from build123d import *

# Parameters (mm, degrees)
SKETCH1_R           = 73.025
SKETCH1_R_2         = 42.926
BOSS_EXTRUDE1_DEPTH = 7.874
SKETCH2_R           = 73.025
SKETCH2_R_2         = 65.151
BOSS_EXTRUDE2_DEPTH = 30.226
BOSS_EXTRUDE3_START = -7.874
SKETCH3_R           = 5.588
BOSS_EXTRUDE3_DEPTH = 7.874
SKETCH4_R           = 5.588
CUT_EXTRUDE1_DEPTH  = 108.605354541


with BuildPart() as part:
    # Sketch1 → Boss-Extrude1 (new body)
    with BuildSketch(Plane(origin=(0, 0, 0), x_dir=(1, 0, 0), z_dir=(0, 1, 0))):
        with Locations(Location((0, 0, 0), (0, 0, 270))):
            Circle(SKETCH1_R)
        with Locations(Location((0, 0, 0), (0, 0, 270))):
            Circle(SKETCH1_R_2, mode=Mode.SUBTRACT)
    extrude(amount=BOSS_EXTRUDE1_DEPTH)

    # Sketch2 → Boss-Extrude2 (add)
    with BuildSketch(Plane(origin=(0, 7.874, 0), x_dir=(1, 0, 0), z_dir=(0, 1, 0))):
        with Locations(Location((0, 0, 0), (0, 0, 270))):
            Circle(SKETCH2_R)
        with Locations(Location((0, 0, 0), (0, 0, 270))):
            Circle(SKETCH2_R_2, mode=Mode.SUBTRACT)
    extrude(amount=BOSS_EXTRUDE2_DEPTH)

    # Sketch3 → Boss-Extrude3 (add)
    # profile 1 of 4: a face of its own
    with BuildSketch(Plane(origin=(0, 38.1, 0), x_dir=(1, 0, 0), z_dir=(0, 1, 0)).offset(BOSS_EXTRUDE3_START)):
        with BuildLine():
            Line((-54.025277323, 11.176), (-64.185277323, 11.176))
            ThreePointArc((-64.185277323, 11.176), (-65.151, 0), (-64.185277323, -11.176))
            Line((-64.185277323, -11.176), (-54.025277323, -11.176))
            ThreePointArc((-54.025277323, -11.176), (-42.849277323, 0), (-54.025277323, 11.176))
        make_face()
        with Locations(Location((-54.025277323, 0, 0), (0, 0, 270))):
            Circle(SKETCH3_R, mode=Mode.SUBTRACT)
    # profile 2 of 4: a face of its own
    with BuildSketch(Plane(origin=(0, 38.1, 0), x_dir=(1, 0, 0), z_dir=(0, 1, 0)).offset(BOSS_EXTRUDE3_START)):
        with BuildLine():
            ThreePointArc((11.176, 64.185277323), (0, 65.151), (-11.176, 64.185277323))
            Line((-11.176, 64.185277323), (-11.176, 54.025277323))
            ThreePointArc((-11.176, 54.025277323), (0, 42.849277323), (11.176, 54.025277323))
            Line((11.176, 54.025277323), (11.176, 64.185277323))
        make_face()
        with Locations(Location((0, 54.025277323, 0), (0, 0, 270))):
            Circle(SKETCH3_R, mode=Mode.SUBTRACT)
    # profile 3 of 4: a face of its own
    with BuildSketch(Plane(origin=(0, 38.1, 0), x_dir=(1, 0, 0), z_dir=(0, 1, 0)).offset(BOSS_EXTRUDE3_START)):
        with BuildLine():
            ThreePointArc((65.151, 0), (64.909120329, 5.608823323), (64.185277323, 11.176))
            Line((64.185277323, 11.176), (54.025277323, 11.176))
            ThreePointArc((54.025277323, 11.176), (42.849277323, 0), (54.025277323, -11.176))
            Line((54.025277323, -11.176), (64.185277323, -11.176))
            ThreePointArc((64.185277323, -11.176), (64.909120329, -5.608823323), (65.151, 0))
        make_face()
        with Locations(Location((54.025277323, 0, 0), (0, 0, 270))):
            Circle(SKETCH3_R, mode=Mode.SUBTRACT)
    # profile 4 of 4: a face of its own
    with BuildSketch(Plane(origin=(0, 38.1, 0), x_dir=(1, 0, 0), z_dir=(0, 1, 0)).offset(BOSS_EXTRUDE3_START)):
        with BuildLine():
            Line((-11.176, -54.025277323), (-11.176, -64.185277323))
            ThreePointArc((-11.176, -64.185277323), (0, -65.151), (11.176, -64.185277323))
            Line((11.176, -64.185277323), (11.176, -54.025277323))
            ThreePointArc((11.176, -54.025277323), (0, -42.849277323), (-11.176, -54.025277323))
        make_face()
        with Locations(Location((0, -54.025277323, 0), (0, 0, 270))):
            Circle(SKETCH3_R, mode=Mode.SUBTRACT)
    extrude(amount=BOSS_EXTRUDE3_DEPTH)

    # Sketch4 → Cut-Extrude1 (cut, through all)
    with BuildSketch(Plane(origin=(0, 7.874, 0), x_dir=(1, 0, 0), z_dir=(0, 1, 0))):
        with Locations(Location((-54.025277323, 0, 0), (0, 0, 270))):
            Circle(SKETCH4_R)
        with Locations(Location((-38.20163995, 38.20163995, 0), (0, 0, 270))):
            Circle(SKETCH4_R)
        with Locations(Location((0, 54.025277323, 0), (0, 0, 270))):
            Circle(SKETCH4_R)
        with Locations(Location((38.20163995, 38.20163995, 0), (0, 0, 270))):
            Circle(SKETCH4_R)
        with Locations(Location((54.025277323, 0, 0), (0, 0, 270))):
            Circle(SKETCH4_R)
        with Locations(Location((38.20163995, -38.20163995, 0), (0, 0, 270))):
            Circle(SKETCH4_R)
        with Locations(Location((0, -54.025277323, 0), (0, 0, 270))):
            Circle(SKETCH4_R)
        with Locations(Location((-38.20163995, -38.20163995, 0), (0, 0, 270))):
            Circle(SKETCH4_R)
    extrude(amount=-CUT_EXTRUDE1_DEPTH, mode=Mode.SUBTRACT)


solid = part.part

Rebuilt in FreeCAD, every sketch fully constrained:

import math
import FreeCAD as App
import Part
import Sketcher
Q = App.Units.Quantity

doc = App.newDocument("Part")
body = doc.addObject("PartDesign::Body", "Body")

# Sketch on XZ plane
sketch1 = body.newObject("Sketcher::SketchObject", "Sketch")
sketch1.AttachmentSupport = (doc.getObject("XZ_Plane"), [""])
sketch1.MapMode = "FlatFace"
sketch1.addGeometry([
    Part.Circle(App.Vector(0, 0, 0), App.Vector(0, 0, 1), 73.025),
    Part.Circle(App.Vector(0, 0, 0), App.Vector(0, 0, 1), 42.926),
], False)
sketch1.addConstraint([
    Sketcher.Constraint("Coincident", 0, 3, -1, 1),
    Sketcher.Constraint("Coincident", 1, 3, -1, 1),
    Sketcher.Constraint("Diameter", 0, Q("5.75 in")),
    Sketcher.Constraint("Diameter", 1, Q("3.38 in")),
])
pad1 = body.newObject("PartDesign::Pad", "Pad")
pad1.Profile = sketch1
pad1.Length = Q("0.31 in")
pad1.Reversed = True

# Sketch on XZ plane
sketch2 = body.newObject("Sketcher::SketchObject", "Sketch001")
sketch2.AttachmentSupport = (doc.getObject("XZ_Plane"), [""])
sketch2.MapMode = "FlatFace"
sketch2.AttachmentOffset = App.Placement(App.Vector(0, 0, -0.31 * 25.4), App.Rotation())
sketch2.addGeometry([
    Part.Circle(App.Vector(0, 0, 0), App.Vector(0, 0, 1), 73.025),
    Part.Circle(App.Vector(0, 0, 0), App.Vector(0, 0, 1), 65.151),
], False)
sketch2.addConstraint([
    Sketcher.Constraint("Coincident", 0, 3, -1, 1),
    Sketcher.Constraint("Coincident", 1, 3, -1, 1),
    Sketcher.Constraint("Diameter", 0, Q("5.75 in")),
    Sketcher.Constraint("Diameter", 1, Q("5.13 in")),
])
pad2 = body.newObject("PartDesign::Pad", "Pad001")
pad2.Profile = sketch2
pad2.Length = Q("1.19 in")
pad2.Reversed = True

# Sketch on XZ plane
sketch3 = body.newObject("Sketcher::SketchObject", "Sketch002")
sketch3.AttachmentSupport = (doc.getObject("XZ_Plane"), [""])
sketch3.MapMode = "FlatFace"
sketch3.AttachmentOffset = App.Placement(App.Vector(0, 0, -1.19 * 25.4), App.Rotation())
sketch3.addGeometry([
    Part.LineSegment(App.Vector(-54.025277, -11.176, 0), App.Vector(-64.185277, -11.176, 0)),  # 0
    Part.ArcOfCircle(Part.Circle(App.Vector(0, 0, 0), App.Vector(0, 0, 1), 65.151), math.radians(170.122632), math.radians(189.877368)),  # 1
    Part.LineSegment(App.Vector(-64.185277, 11.176, 0), App.Vector(-54.025277, 11.176, 0)),  # 2
    Part.ArcOfCircle(Part.Circle(App.Vector(-54.025277, 0, 0), App.Vector(0, 0, 1), 11.176), math.radians(-90), math.radians(90)),  # 3
    Part.Circle(App.Vector(-54.025277, 0, 0), App.Vector(0, 0, 1), 5.588),  # 4
    Part.ArcOfCircle(Part.Circle(App.Vector(0, 0, 0), App.Vector(0, 0, 1), 65.151), math.radians(-99.877368), math.radians(-80.122632)),  # 5
    Part.LineSegment(App.Vector(-11.176, -64.185277, 0), App.Vector(-11.176, -54.025277, 0)),  # 6
    Part.ArcOfCircle(Part.Circle(App.Vector(0, -54.025277, 0), App.Vector(0, 0, 1), 11.176), math.radians(0), math.radians(180)),  # 7
    Part.LineSegment(App.Vector(11.176, -54.025277, 0), App.Vector(11.176, -64.185277, 0)),  # 8
    Part.Circle(App.Vector(0, -54.025277, 0), App.Vector(0, 0, 1), 5.588),  # 9
    Part.ArcOfCircle(Part.Circle(App.Vector(0, 0, 0), App.Vector(0, 0, 1), 65.151), math.radians(-9.877368), math.radians(0)),  # 10
    Part.LineSegment(App.Vector(64.185277, -11.176, 0), App.Vector(54.025277, -11.176, 0)),  # 11
    Part.ArcOfCircle(Part.Circle(App.Vector(54.025277, 0, 0), App.Vector(0, 0, 1), 11.176), math.radians(90), math.radians(270)),  # 12
    Part.LineSegment(App.Vector(54.025277, 11.176, 0), App.Vector(64.185277, 11.176, 0)),  # 13
    Part.ArcOfCircle(Part.Circle(App.Vector(0, 0, 0), App.Vector(0, 0, 1), 65.151), math.radians(0), math.radians(9.877368)),  # 14
    Part.Circle(App.Vector(54.025277, 0, 0), App.Vector(0, 0, 1), 5.588),  # 15
    Part.LineSegment(App.Vector(-11.176, 54.025277, 0), App.Vector(-11.176, 64.185277, 0)),  # 16
    Part.ArcOfCircle(Part.Circle(App.Vector(0, 0, 0), App.Vector(0, 0, 1), 65.151), math.radians(80.122632), math.radians(99.877368)),  # 17
    Part.LineSegment(App.Vector(11.176, 64.185277, 0), App.Vector(11.176, 54.025277, 0)),  # 18
    Part.ArcOfCircle(Part.Circle(App.Vector(0, 54.025277, 0), App.Vector(0, 0, 1), 11.176), math.radians(180), math.radians(360)),  # 19
    Part.Circle(App.Vector(0, 54.025277, 0), App.Vector(0, 0, 1), 5.588),  # 20
], False)
sketch3.addConstraint([
    Sketcher.Constraint("Coincident", 0, 2, 1, 2),
    Sketcher.Constraint("Coincident", 1, 1, 2, 1),
    Sketcher.Constraint("Tangent", 2, 2, 3, 2),
    Sketcher.Constraint("Tangent", 3, 1, 0, 1),
    Sketcher.Constraint("Coincident", 5, 1, 6, 1),
    Sketcher.Constraint("Tangent", 6, 2, 7, 2),
    Sketcher.Constraint("Tangent", 7, 1, 8, 1),
    Sketcher.Constraint("Coincident", 8, 2, 5, 2),
    Sketcher.Constraint("Coincident", 10, 1, 11, 1),
    Sketcher.Constraint("Tangent", 11, 2, 12, 2),
    Sketcher.Constraint("Tangent", 12, 1, 13, 1),
    Sketcher.Constraint("Coincident", 13, 2, 14, 2),
    Sketcher.Constraint("Tangent", 14, 1, 10, 2),
    Sketcher.Constraint("Coincident", 16, 2, 17, 2),
    Sketcher.Constraint("Coincident", 17, 1, 18, 1),
    Sketcher.Constraint("Tangent", 18, 2, 19, 2),
    Sketcher.Constraint("Tangent", 19, 1, 16, 1),
    Sketcher.Constraint("Horizontal", 0),
    Sketcher.Constraint("Horizontal", 2),
    Sketcher.Constraint("Vertical", 6),
    Sketcher.Constraint("Vertical", 8),
    Sketcher.Constraint("Horizontal", 11),
    Sketcher.Constraint("Horizontal", 13),
    Sketcher.Constraint("Vertical", 16),
    Sketcher.Constraint("Vertical", 18),
    Sketcher.Constraint("Coincident", 1, 3, -1, 1),
    Sketcher.Constraint("Coincident", 5, 3, -1, 1),
    Sketcher.Constraint("Coincident", 10, 3, -1, 1),
    Sketcher.Constraint("Coincident", 17, 3, -1, 1),
    Sketcher.Constraint("Coincident", 4, 3, 3, 3),
    Sketcher.Constraint("Coincident", 9, 3, 7, 3),
    Sketcher.Constraint("Coincident", 15, 3, 12, 3),
    Sketcher.Constraint("Coincident", 20, 3, 19, 3),
    Sketcher.Constraint("Equal", 1, 5),
    Sketcher.Constraint("Equal", 3, 7),
    Sketcher.Constraint("Equal", 4, 9),
    Sketcher.Constraint("Equal", 5, 10),
    Sketcher.Constraint("Equal", 7, 12),
    Sketcher.Constraint("Equal", 10, 14),
    Sketcher.Constraint("Equal", 9, 15),
    Sketcher.Constraint("Equal", 14, 17),
    Sketcher.Constraint("Equal", 12, 19),
    Sketcher.Constraint("Equal", 15, 20),
    Sketcher.Constraint("Symmetric", 3, 3, 12, 3, -1, 1),
    Sketcher.Constraint("Symmetric", 7, 3, 19, 3, -1, 1),
    Sketcher.Constraint("PointOnObject", 3, 3, -1),
    Sketcher.Constraint("PointOnObject", 7, 3, -2),
    Sketcher.Constraint("PointOnObject", 14, 1, -1),
    Sketcher.Constraint("Equal", 13, 6),
    Sketcher.Constraint("Diameter", 4, Q("0.44 in")),
    Sketcher.Constraint("Radius", 3, Q("0.44 in")),
    Sketcher.Constraint("DistanceX", 0, 2, 0, 1, Q("0.4 in")),
    Sketcher.Constraint("Radius", 1, Q("2.565 in")),
])
pad3 = body.newObject("PartDesign::Pad", "Pad002")
pad3.Profile = sketch3
pad3.Length = Q("0.31 in")
pad3.Reversed = True

# Sketch on XZ plane
sketch4 = body.newObject("Sketcher::SketchObject", "Sketch003")
sketch4.AttachmentSupport = (doc.getObject("XZ_Plane"), [""])
sketch4.MapMode = "FlatFace"
sketch4.AttachmentOffset = App.Placement(App.Vector(0, 0, -0.31 * 25.4), App.Rotation())
sketch4.addGeometry([
    Part.Circle(App.Vector(-54.025277, 0, 0), App.Vector(0, 0, 1), 5.588),  # 0
    Part.Circle(App.Vector(-38.20164, -38.20164, 0), App.Vector(0, 0, 1), 5.588),  # 1
    Part.Circle(App.Vector(0, -54.025277, 0), App.Vector(0, 0, 1), 5.588),  # 2
    Part.Circle(App.Vector(38.20164, -38.20164, 0), App.Vector(0, 0, 1), 5.588),  # 3
    Part.Circle(App.Vector(54.025277, 0, 0), App.Vector(0, 0, 1), 5.588),  # 4
    Part.Circle(App.Vector(38.20164, 38.20164, 0), App.Vector(0, 0, 1), 5.588),  # 5
    Part.Circle(App.Vector(0, 54.025277, 0), App.Vector(0, 0, 1), 5.588),  # 6
    Part.Circle(App.Vector(-38.20164, 38.20164, 0), App.Vector(0, 0, 1), 5.588),  # 7
], False)
sketch4.addConstraint([
    Sketcher.Constraint("Equal", 0, 1),
    Sketcher.Constraint("Equal", 1, 2),
    Sketcher.Constraint("Equal", 2, 3),
    Sketcher.Constraint("Equal", 3, 4),
    Sketcher.Constraint("Equal", 4, 5),
    Sketcher.Constraint("Equal", 5, 6),
    Sketcher.Constraint("Equal", 6, 7),
    Sketcher.Constraint("Symmetric", 0, 3, 4, 3, -1, 1),
    Sketcher.Constraint("Symmetric", 1, 3, 5, 3, -1, 1),
    Sketcher.Constraint("Symmetric", 2, 3, 6, 3, -1, 1),
    Sketcher.Constraint("Symmetric", 3, 3, 7, 3, -1, 1),
    Sketcher.Constraint("Symmetric", 1, 3, 3, 3, -2),
    Sketcher.Constraint("PointOnObject", 0, 3, -1),
    Sketcher.Constraint("PointOnObject", 2, 3, -2),
    Sketcher.Constraint("Diameter", 0, Q("0.44 in")),
    Sketcher.Constraint("DistanceX", 1, 3, -1, 1, 38.20164),
    Sketcher.Constraint("DistanceY", 1, 3, -1, 1, 38.20164),
    Sketcher.Constraint("DistanceX", 0, 3, -1, 1, 54.025277),
    Sketcher.Constraint("DistanceY", 2, 3, -1, 1, 54.025277),
])
pocket1 = body.newObject("PartDesign::Pocket", "Pocket")
pocket1.Profile = sketch4
pocket1.Type = "ThroughAll"
pocket1.Reversed = True

doc.recompute()
